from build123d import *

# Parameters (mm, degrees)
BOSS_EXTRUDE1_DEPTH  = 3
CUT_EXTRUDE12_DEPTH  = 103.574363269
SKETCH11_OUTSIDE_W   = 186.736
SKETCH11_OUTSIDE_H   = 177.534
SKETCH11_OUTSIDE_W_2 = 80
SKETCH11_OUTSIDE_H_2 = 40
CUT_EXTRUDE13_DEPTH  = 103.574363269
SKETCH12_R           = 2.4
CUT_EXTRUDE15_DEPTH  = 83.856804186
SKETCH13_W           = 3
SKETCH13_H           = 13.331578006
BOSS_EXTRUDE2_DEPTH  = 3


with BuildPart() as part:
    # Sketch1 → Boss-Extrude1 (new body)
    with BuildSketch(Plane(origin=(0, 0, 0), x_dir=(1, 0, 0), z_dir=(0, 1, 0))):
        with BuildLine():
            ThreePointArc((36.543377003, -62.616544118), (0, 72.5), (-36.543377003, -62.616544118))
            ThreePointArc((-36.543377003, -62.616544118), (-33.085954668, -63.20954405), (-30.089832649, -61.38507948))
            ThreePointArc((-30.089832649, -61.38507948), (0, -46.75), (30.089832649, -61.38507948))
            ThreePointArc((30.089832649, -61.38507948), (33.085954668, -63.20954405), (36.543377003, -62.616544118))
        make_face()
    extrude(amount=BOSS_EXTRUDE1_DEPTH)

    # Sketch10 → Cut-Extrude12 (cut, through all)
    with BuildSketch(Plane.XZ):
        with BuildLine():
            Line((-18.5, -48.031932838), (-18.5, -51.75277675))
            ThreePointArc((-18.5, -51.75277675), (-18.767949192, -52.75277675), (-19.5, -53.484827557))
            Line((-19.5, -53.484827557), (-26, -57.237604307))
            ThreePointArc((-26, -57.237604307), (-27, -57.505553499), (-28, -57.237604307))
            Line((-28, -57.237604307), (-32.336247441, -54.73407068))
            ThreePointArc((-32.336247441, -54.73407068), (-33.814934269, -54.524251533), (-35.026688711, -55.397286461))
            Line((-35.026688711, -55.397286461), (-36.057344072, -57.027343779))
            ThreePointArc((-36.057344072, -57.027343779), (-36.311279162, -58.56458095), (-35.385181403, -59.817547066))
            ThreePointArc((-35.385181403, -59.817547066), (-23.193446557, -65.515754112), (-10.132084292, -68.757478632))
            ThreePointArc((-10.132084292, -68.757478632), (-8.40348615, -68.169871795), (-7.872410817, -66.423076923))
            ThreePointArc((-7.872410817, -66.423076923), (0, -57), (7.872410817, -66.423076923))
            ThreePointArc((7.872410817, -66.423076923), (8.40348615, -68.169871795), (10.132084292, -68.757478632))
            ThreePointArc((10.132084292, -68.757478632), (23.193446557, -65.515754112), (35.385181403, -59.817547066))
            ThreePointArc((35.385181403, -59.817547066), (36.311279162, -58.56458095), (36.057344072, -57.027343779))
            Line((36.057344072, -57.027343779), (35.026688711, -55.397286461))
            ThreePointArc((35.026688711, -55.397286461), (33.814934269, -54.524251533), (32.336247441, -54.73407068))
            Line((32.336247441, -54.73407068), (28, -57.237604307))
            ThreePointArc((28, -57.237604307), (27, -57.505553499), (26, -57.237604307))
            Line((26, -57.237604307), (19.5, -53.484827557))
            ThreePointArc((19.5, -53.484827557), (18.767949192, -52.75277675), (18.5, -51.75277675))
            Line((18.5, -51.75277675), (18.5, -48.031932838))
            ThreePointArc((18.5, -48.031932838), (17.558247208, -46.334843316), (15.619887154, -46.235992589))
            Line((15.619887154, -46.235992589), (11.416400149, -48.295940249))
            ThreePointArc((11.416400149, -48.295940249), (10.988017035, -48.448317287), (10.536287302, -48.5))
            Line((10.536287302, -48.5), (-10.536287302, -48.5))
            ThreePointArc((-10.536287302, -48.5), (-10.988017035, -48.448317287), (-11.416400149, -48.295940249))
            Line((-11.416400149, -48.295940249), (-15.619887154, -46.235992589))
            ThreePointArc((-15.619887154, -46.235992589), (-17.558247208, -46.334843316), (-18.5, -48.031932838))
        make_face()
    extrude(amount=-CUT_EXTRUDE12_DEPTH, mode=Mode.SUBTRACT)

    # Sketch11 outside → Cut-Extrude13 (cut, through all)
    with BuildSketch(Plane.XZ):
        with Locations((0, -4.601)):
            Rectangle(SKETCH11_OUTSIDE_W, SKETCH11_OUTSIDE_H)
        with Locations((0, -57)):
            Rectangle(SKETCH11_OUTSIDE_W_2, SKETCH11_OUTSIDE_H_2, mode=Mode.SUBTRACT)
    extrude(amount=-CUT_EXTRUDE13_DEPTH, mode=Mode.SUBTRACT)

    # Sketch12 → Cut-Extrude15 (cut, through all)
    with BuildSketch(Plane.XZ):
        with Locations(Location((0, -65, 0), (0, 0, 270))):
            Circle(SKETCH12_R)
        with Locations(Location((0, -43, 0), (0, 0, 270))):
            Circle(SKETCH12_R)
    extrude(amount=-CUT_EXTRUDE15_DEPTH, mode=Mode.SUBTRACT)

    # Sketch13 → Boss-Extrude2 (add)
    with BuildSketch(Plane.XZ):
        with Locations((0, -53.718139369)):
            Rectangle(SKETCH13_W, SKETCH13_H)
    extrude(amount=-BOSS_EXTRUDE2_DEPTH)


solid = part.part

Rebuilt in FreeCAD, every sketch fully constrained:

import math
import FreeCAD as App
import Part
import Sketcher

V = App.Vector


def add_polygon(sketch, points):
    """Adds a closed chain of lines whose ends are joined by coincident constraints."""
    first, n = sketch.GeometryCount, len(points)
    for a, b in zip(points, points[1:] + points[:1]):
        sketch.addGeometry(Part.LineSegment(App.Vector(*a, 0), App.Vector(*b, 0)), False)
    for i in range(n):
        sketch.addConstraint(Sketcher.Constraint("Coincident", first + i, 2, first + (i + 1) % n, 1))

doc = App.newDocument("Part")
params = doc.addObject("Spreadsheet::Sheet", "Params")
for row, (alias, value) in enumerate([
    ("sketch1_radius", "5 mm"),
    ("sketch1_radius2", "72.5 mm"),
    ("sketch1_radius3", "38.25 mm"),
    ("pad1_length", "3 mm"),
    ("sketch2_radius", "2 mm"),
    ("sketch2_radius2", "2 mm"),
    ("sketch2_radius3", "2 mm"),
    ("sketch2_radius4", "2 mm"),
    ("sketch2_radius5", "2 mm"),
    ("sketch3_width", "80 mm"),
    ("sketch3_height", "40 mm"),
    ("sketch4_diameter", "4.8 mm"),
    ("sketch5_width", "3 mm"),
    ("pad2_length", "3 mm"),
], start=1):
    params.set(f"A{row}", alias)
    params.set(f"B{row}", "=" + value)
    params.setAlias(f"B{row}", alias)

body = doc.addObject("PartDesign::Body", "Body")

sketch1 = doc.addObject("Sketcher::SketchObject", "Sketch")
body.addObject(sketch1)
sketch1.AttachmentSupport = (doc.XZ_Plane, [""])
sketch1.MapMode = "FlatFace"
sketch1.addGeometry(Part.ArcOfCircle(Part.Circle(V(0, 0, 0), V(0, 0, 1), 72.5), math.radians(120.268083), math.radians(419.731917)), False)
sketch1.addGeometry(Part.ArcOfCircle(Part.Circle(V(-34.023144, 58.298162, 0), V(0, 0, 1), 5), math.radians(38.125318), math.radians(120.268083)), False)
sketch1.addGeometry(Part.ArcOfCircle(Part.Circle(V(0, 85, 0), V(0, 0, 1), 38.25), math.radians(-141.874682), math.radians(-38.125318)), False)
sketch1.addGeometry(Part.ArcOfCircle(Part.Circle(V(34.023144, 58.298162, 0), V(0, 0, 1), 5), math.radians(59.731917), math.radians(141.874682)), False)
sketch1.addConstraint(Sketcher.Constraint("Tangent", 0, 1, 1, 2))
sketch1.addConstraint(Sketcher.Constraint("Tangent", 1, 1, 2, 1))
sketch1.addConstraint(Sketcher.Constraint("Tangent", 2, 2, 3, 2))
sketch1.addConstraint(Sketcher.Constraint("Tangent", 3, 1, 0, 2))
sketch1.addConstraint(Sketcher.Constraint("Coincident", 0, 3, -1, 1))
sketch1.addConstraint(Sketcher.Constraint("Equal", 1, 3))
sketch1.addConstraint(Sketcher.Constraint("PointOnObject", 2, 3, -2))
sketch1.addConstraint(Sketcher.Constraint("Radius", 1, 5.0))
sketch1.addConstraint(Sketcher.Constraint("Radius", 0, 72.5))
sketch1.addConstraint(Sketcher.Constraint("Radius", 2, 38.25))
sketch1.addConstraint(Sketcher.Constraint("DistanceY", -1, 1, 2, 3, 85.0))
sketch1.setExpression("Constraints[7]", "Params.sketch1_radius")
sketch1.setExpression("Constraints[8]", "Params.sketch1_radius2")
sketch1.setExpression("Constraints[9]", "Params.sketch1_radius3")
pad1 = doc.addObject("PartDesign::Pad", "Pad")
body.addObject(pad1)
pad1.Profile = sketch1
pad1.setExpression("Length", "Params.pad1_length")
pad1.Reversed = True

sketch2 = doc.addObject("Sketcher::SketchObject", "Sketch001")
body.addObject(sketch2)
sketch2.AttachmentSupport = (doc.XZ_Plane, [""])
sketch2.MapMode = "FlatFace"
sketch2.addGeometry(Part.LineSegment(V(-18.5, -48.031933, 0), V(-18.5, -51.752777, 0)), False)
sketch2.addGeometry(Part.ArcOfCircle(Part.Circle(V(-20.5, -51.752777, 0), V(0, 0, 1), 2), math.radians(-60), math.radians(0)), False)
sketch2.addGeometry(Part.LineSegment(V(-19.5, -53.484828, 0), V(-26, -57.237604, 0)), False)
sketch2.addGeometry(Part.ArcOfCircle(Part.Circle(V(-27, -55.505553, 0), V(0, 0, 1), 2), math.radians(-120), math.radians(-60)), False)
sketch2.addGeometry(Part.LineSegment(V(-28, -57.237604, 0), V(-32.336247, -54.734071, 0)), False)
sketch2.addGeometry(Part.ArcOfCircle(Part.Circle(V(-33.336247, -56.466121, 0), V(0, 0, 1), 2), math.radians(60), math.radians(147.695583)), False)
sketch2.addGeometry(Part.LineSegment(V(-35.026689, -55.397286, 0), V(-36.057344, -57.027344, 0)), False)
sketch2.addGeometry(Part.ArcOfCircle(Part.Circle(V(-34.366903, -58.096179, 0), V(0, 0, 1), 2), math.radians(147.695583), math.radians(239.393484)), False)
sketch2.addGeometry(Part.ArcOfCircle(Part.Circle(V(0, 0, 0), V(0, 0, 1), 69.5), math.radians(-120.606516), math.radians(-98.382762)), False)
sketch2.addGeometry(Part.ArcOfCircle(Part.Circle(V(-9.840514, -66.778846, 0), V(0, 0, 1), 2), math.radians(-98.382762), math.radians(10.246569)), False)
sketch2.addGeometry(Part.ArcOfCircle(Part.Circle(V(0, -65, 0), V(0, 0, 1), 8), math.radians(-10.246569), math.radians(190.246569)), False)
sketch2.addGeometry(Part.ArcOfCircle(Part.Circle(V(9.840514, -66.778846, 0), V(0, 0, 1), 2), math.radians(169.753431), math.radians(278.382762)), False)
sketch2.addGeometry(Part.ArcOfCircle(Part.Circle(V(0, 0, 0), V(0, 0, 1), 69.5), math.radians(-81.617238), math.radians(-59.393484)), False)
sketch2.addGeometry(Part.ArcOfCircle(Part.Circle(V(34.366903, -58.096179, 0), V(0, 0, 1), 2), math.radians(-59.393484), math.radians(32.304417)), False)
sketch2.addGeometry(Part.LineSegment(V(36.057344, -57.027344, 0), V(35.026689, -55.397286, 0)), False)
sketch2.addGeometry(Part.ArcOfCircle(Part.Circle(V(33.336247, -56.466121, 0), V(0, 0, 1), 2), math.radians(32.304417), math.radians(120)), False)
sketch2.addGeometry(Part.LineSegment(V(32.336247, -54.734071, 0), V(28, -57.237604, 0)), False)
sketch2.addGeometry(Part.ArcOfCircle(Part.Circle(V(27, -55.505553, 0), V(0, 0, 1), 2), math.radians(-120), math.radians(-60)), False)
sketch2.addGeometry(Part.LineSegment(V(26, -57.237604, 0), V(19.5, -53.484828, 0)), False)
sketch2.addGeometry(Part.ArcOfCircle(Part.Circle(V(20.5, -51.752777, 0), V(0, 0, 1), 2), math.radians(180), math.radians(240)), False)
sketch2.addGeometry(Part.LineSegment(V(18.5, -51.752777, 0), V(18.5, -48.031933, 0)), False)
sketch2.addGeometry(Part.ArcOfCircle(Part.Circle(V(16.5, -48.031933, 0), V(0, 0, 1), 2), math.radians(0), math.radians(116.107481)), False)
sketch2.addGeometry(Part.LineSegment(V(15.619887, -46.235993, 0), V(11.4164, -48.29594, 0)), False)
sketch2.addGeometry(Part.ArcOfCircle(Part.Circle(V(10.536287, -46.5, 0), V(0, 0, 1), 2), math.radians(-90), math.radians(-63.892519)), False)
sketch2.addGeometry(Part.LineSegment(V(10.536287, -48.5, 0), V(-10.536287, -48.5, 0)), False)
sketch2.addGeometry(Part.ArcOfCircle(Part.Circle(V(-10.536287, -46.5, 0), V(0, 0, 1), 2), math.radians(-116.107481), math.radians(-90)), False)
sketch2.addGeometry(Part.LineSegment(V(-11.4164, -48.29594, 0), V(-15.619887, -46.235993, 0)), False)
sketch2.addGeometry(Part.ArcOfCircle(Part.Circle(V(-16.5, -48.031933, 0), V(0, 0, 1), 2), math.radians(63.892519), math.radians(180)), False)
sketch2.addConstraint(Sketcher.Constraint("Coincident", 0, 2, 1, 2))
sketch2.addConstraint(Sketcher.Constraint("Coincident", 1, 1, 2, 1))
sketch2.addConstraint(Sketcher.Constraint("Coincident", 2, 2, 3, 2))
sketch2.addConstraint(Sketcher.Constraint("Coincident", 3, 1, 4, 1))
sketch2.addConstraint(Sketcher.Constraint("Coincident", 4, 2, 5, 1))
sketch2.addConstraint(Sketcher.Constraint("Coincident", 5, 2, 6, 1))
sketch2.addConstraint(Sketcher.Constraint("Coincident", 6, 2, 7, 1))
sketch2.addConstraint(Sketcher.Constraint("Coincident", 7, 2, 8, 1))
sketch2.addConstraint(Sketcher.Constraint("Coincident", 8, 2, 9, 1))
sketch2.addConstraint(Sketcher.Constraint("Coincident", 9, 2, 10, 2))
sketch2.addConstraint(Sketcher.Constraint("Coincident", 10, 1, 11, 1))
sketch2.addConstraint(Sketcher.Constraint("Coincident", 11, 2, 12, 1))
sketch2.addConstraint(Sketcher.Constraint("Coincident", 12, 2, 13, 1))
sketch2.addConstraint(Sketcher.Constraint("Coincident", 13, 2, 14, 1))
sketch2.addConstraint(Sketcher.Constraint("Coincident", 14, 2, 15, 1))
sketch2.addConstraint(Sketcher.Constraint("Coincident", 15, 2, 16, 1))
sketch2.addConstraint(Sketcher.Constraint("Coincident", 16, 2, 17, 2))
sketch2.addConstraint(Sketcher.Constraint("Coincident", 17, 1, 18, 1))
sketch2.addConstraint(Sketcher.Constraint("Coincident", 18, 2, 19, 2))
sketch2.addConstraint(Sketcher.Constraint("Coincident", 19, 1, 20, 1))
sketch2.addConstraint(Sketcher.Constraint("Coincident", 20, 2, 21, 1))
sketch2.addConstraint(Sketcher.Constraint("Coincident", 21, 2, 22, 1))
sketch2.addConstraint(Sketcher.Constraint("Coincident", 22, 2, 23, 2))
sketch2.addConstraint(Sketcher.Constraint("Coincident", 23, 1, 24, 1))
sketch2.addConstraint(Sketcher.Constraint("Coincident", 24, 2, 25, 2))
sketch2.addConstraint(Sketcher.Constraint("Coincident", 25, 1, 26, 1))
sketch2.addConstraint(Sketcher.Constraint("Coincident", 26, 2, 27, 1))
sketch2.addConstraint(Sketcher.Constraint("Coincident", 27, 2, 0, 1))
sketch2.addConstraint(Sketcher.Constraint("Vertical", 0))
sketch2.addConstraint(Sketcher.Constraint("Vertical", 20))
sketch2.addConstraint(Sketcher.Constraint("Horizontal", 24))
sketch2.addConstraint(Sketcher.Constraint("Coincident", 8, 3, -1, 1))
sketch2.addConstraint(Sketcher.Constraint("Coincident", 12, 3, -1, 1))
sketch2.addConstraint(Sketcher.Constraint("PointOnObject", 10, 3, -2))
sketch2.addConstraint(Sketcher.Constraint("Radius", 1, 2.0))
sketch2.addConstraint(Sketcher.Constraint("Radius", 3, 2.0))
sketch2.addConstraint(Sketcher.Constraint("Radius", 5, 2.0))
sketch2.addConstraint(Sketcher.Constraint("Radius", 7, 2.0))
sketch2.addConstraint(Sketcher.Constraint("Radius", 9, 2.0))
sketch2.addConstraint(Sketcher.Constraint("Radius", 10, 8.0))
sketch2.addConstraint(Sketcher.Constraint("Radius", 11, 2.0))
sketch2.addConstraint(Sketcher.Constraint("Radius", 13, 2.0))
sketch2.addConstraint(Sketcher.Constraint("Radius", 15, 2.0))
sketch2.addConstraint(Sketcher.Constraint("Radius", 17, 2.0))
sketch2.addConstraint(Sketcher.Constraint("Radius", 19, 2.0))
sketch2.addConstraint(Sketcher.Constraint("Radius", 21, 2.0))
sketch2.addConstraint(Sketcher.Constraint("Radius", 23, 2.0))
sketch2.addConstraint(Sketcher.Constraint("Radius", 25, 2.0))
sketch2.addConstraint(Sketcher.Constraint("Radius", 27, 2.0))
sketch2.addConstraint(Sketcher.Constraint("Radius", 8, 69.5))
sketch2.addConstraint(Sketcher.Constraint("Radius", 12, 69.5))
sketch2.addConstraint(Sketcher.Constraint("DistanceX", 3, 3, -1, 1, 27.0))
sketch2.addConstraint(Sketcher.Constraint("DistanceY", 10, 3, -1, 1, 65.0))
sketch2.addConstraint(Sketcher.Constraint("DistanceX", -1, 1, 17, 3, 27.0))
sketch2.addConstraint(Sketcher.Constraint("DistanceX", 2, 2, -1, 1, 26.0))
sketch2.addConstraint(Sketcher.Constraint("DistanceX", 3, 1, -1, 1, 28.0))
sketch2.addConstraint(Sketcher.Constraint("DistanceX", -1, 1, 16, 2, 28.0))
sketch2.addConstraint(Sketcher.Constraint("DistanceX", -1, 1, 17, 1, 26.0))
sketch2.addConstraint(Sketcher.Constraint("DistanceX", 1, 3, 1, 1, 1.0))
sketch2.addConstraint(Sketcher.Constraint("DistanceX", 5, 3, 4, 2, 1.0))
sketch2.addConstraint(Sketcher.Constraint("DistanceX", 15, 2, 15, 3, 1.0))
sketch2.addConstraint(Sketcher.Constraint("DistanceX", 18, 2, 19, 3, 1.0))
sketch2.addConstraint(Sketcher.Constraint("DistanceX", 1, 3, -1, 1, 20.5))
sketch2.addConstraint(Sketcher.Constraint("DistanceX", -1, 1, 19, 3, 20.5))
sketch2.addConstraint(Sketcher.Constraint("DistanceY", 23, 3, -1, 1, 46.5))
sketch2.addConstraint(Sketcher.Constraint("Distance", 22, 4.681099))
sketch2.addConstraint(Sketcher.Constraint("Distance", 26, 4.681099))
sketch2.addConstraint(Sketcher.Constraint("DistanceX", -1, 1, 22, 2, 11.4164))
sketch2.addConstraint(Sketcher.Constraint("DistanceX", 25, 1, -1, 1, 11.4164))
sketch2.addConstraint(Sketcher.Constraint("DistanceY", 8, 2, 0, 2, 17.004702))
sketch2.addConstraint(Sketcher.Constraint("DistanceY", 8, 2, 9, 2, 2.334402))
sketch2.addConstraint(Sketcher.Constraint("DistanceY", 8, 2, 10, 1, 2.334402))
sketch2.addConstraint(Sketcher.Constraint("DistanceY", 11, 2, 10, 1, 2.334402))
sketch2.addConstraint(Sketcher.Constraint("DistanceY", 11, 2, 19, 3, 17.004702))
sketch2.addConstraint(Sketcher.Constraint("DistanceX", 23, 3, 21, 2, 5.0836))
sketch2.addConstraint(Sketcher.Constraint("DistanceX", 23, 1, 21, 2, 5.0836))
sketch2.addConstraint(Sketcher.Constraint("DistanceX", 26, 2, 25, 3, 5.0836))
sketch2.addConstraint(Sketcher.Constraint("DistanceX", 26, 2, 24, 2, 5.0836))
sketch2.addConstraint(Sketcher.Constraint("Distance", 6, 1.928558))
sketch2.addConstraint(Sketcher.Constraint("Distance", 14, 1.928558))
sketch2.addConstraint(Sketcher.Constraint("DistanceX", 24, 2, 24, 1, 21.072575))
sketch2.addConstraint(Sketcher.Constraint("DistanceY", 0, 2, 0, 1, 3.720844))
sketch2.addConstraint(Sketcher.Constraint("DistanceY", 20, 1, 20, 2, 3.720844))
sketch2.addConstraint(Sketcher.Constraint("DistanceY", 5, 3, -1, 1, 56.466121))
sketch2.addConstraint(Sketcher.Constraint("DistanceY", 7, 3, -1, 1, 58.096179))
sketch2.addConstraint(Sketcher.Constraint("DistanceY", 13, 3, -1, 1, 58.096179))
sketch2.addConstraint(Sketcher.Constraint("DistanceY", 15, 3, -1, 1, 56.466121))
sketch2.addConstraint(Sketcher.Constraint("DistanceX", 5, 2, -1, 1, 35.026689))
sketch2.addConstraint(Sketcher.Constraint("DistanceX", 7, 2, -1, 1, 35.385181))
sketch2.addConstraint(Sketcher.Constraint("DistanceY", 8, 2, -1, 1, 68.757479))
sketch2.addConstraint(Sketcher.Constraint("DistanceX", -1, 1, 12, 2, 35.385181))
sketch2.addConstraint(Sketcher.Constraint("DistanceX", -1, 1, 14, 2, 35.026689))
sketch2.addConstraint(Sketcher.Constraint("DistanceY", 22, 2, -1, 1, 48.29594))
sketch2.addConstraint(Sketcher.Constraint("DistanceY", 9, 3, 1, 3, 15.026069))
sketch2.addConstraint(Sketcher.Constraint("DistanceX", 5, 3, 11, 3, 43.176761))
sketch2.addConstraint(Sketcher.Constraint("DistanceX", 9, 3, 15, 3, 43.176761))
sketch2.addConstraint(Sketcher.Constraint("DistanceY", 17, 3, 21, 3, 7.473621))
sketch2.addConstraint(Sketcher.Constraint("DistanceY", 3, 3, 27, 3, 7.473621))
sketch2.addConstraint(Sketcher.Constraint("DistanceY", 18, 2, 19, 1, 1.732051))
sketch2.setExpression("Constraints[34]", "Params.sketch2_radius")
sketch2.setExpression("Constraints[35]", "Params.sketch2_radius2")
sketch2.setExpression("Constraints[36]", "Params.sketch2_radius3")
sketch2.setExpression("Constraints[37]", "Params.sketch2_radius4")
sketch2.setExpression("Constraints[38]", "Params.sketch2_radius5")
pocket1 = doc.addObject("PartDesign::Pocket", "Pocket")
body.addObject(pocket1)
pocket1.Profile = sketch2
pocket1.Type = "ThroughAll"

sketch3 = doc.addObject("Sketcher::SketchObject", "Sketch002")
body.addObject(sketch3)
sketch3.AttachmentSupport = (doc.XZ_Plane, [""])
sketch3.MapMode = "FlatFace"
add_polygon(sketch3, [(-93.368, 84.166), (-93.368, -93.368), (93.368, -93.368), (93.368, 84.166)])
add_polygon(sketch3, [(40, -77), (-40, -77), (-40, -37), (40, -37)])
sketch3.addConstraint(Sketcher.Constraint("Vertical", 0))
sketch3.addConstraint(Sketcher.Constraint("Horizontal", 1))
sketch3.addConstraint(Sketcher.Constraint("Vertical", 2))
sketch3.addConstraint(Sketcher.Constraint("Horizontal", 3))
sketch3.addConstraint(Sketcher.Constraint("Horizontal", 4))
sketch3.addConstraint(Sketcher.Constraint("Vertical", 5))
sketch3.addConstraint(Sketcher.Constraint("Horizontal", 6))
sketch3.addConstraint(Sketcher.Constraint("Vertical", 7))
sketch3.addConstraint(Sketcher.Constraint("DistanceX", 4, 2, 4, 1, 80.0))
sketch3.addConstraint(Sketcher.Constraint("DistanceY", 5, 1, 5, 2, 40.0))
sketch3.addConstraint(Sketcher.Constraint("DistanceX", 4, 2, -1, 1, 40.0))
sketch3.addConstraint(Sketcher.Constraint("DistanceY", 4, 2, -1, 1, 77.0))
sketch3.addConstraint(Sketcher.Constraint("DistanceX", 1, 1, 1, 2, 186.736))
sketch3.addConstraint(Sketcher.Constraint("DistanceY", 0, 2, 0, 1, 177.534))
sketch3.addConstraint(Sketcher.Constraint("DistanceX", 0, 2, -1, 1, 93.368))
sketch3.addConstraint(Sketcher.Constraint("DistanceY", 0, 2, -1, 1, 93.368))
sketch3.setExpression("Constraints[16]", "Params.sketch3_width")
sketch3.setExpression("Constraints[17]", "Params.sketch3_height")
pocket2 = doc.addObject("PartDesign::Pocket", "Pocket001")
body.addObject(pocket2)
pocket2.Profile = sketch3
pocket2.Type = "ThroughAll"

sketch4 = doc.addObject("Sketcher::SketchObject", "Sketch003")
body.addObject(sketch4)
sketch4.AttachmentSupport = (doc.XZ_Plane, [""])
sketch4.MapMode = "FlatFace"
sketch4.addGeometry(Part.Circle(V(0, -65, 0), V(0, 0, 1), 2.4), False)
sketch4.addGeometry(Part.Circle(V(0, -43, 0), V(0, 0, 1), 2.4), False)
sketch4.addConstraint(Sketcher.Constraint("Equal", 0, 1))
sketch4.addConstraint(Sketcher.Constraint("PointOnObject", 0, 3, -2))
sketch4.addConstraint(Sketcher.Constraint("PointOnObject", 1, 3, -2))
sketch4.addConstraint(Sketcher.Constraint("Diameter", 0, 4.8))
sketch4.addConstraint(Sketcher.Constraint("DistanceY", 0, 3, -1, 1, 65.0))
sketch4.addConstraint(Sketcher.Constraint("DistanceY", 1, 3, -1, 1, 43.0))
sketch4.setExpression("Constraints[3]", "Params.sketch4_diameter")
pocket3 = doc.addObject("PartDesign::Pocket", "Pocket002")
body.addObject(pocket3)
pocket3.Profile = sketch4
pocket3.Type = "ThroughAll"

sketch5 = doc.addObject("Sketcher::SketchObject", "Sketch004")
body.addObject(sketch5)
sketch5.AttachmentSupport = (doc.XZ_Plane, [""])
sketch5.MapMode = "FlatFace"
add_polygon(sketch5, [(-1.5, -47.05235), (-1.5, -60.383928), (1.5, -60.383928), (1.5, -47.05235)])
sketch5.addConstraint(Sketcher.Constraint("Vertical", 0))
sketch5.addConstraint(Sketcher.Constraint("Horizontal", 1))
sketch5.addConstraint(Sketcher.Constraint("Vertical", 2))
sketch5.addConstraint(Sketcher.Constraint("Horizontal", 3))
sketch5.addConstraint(Sketcher.Constraint("DistanceX", 1, 1, 1, 2, 3.0))
sketch5.addConstraint(Sketcher.Constraint("DistanceX", 0, 2, -1, 1, 1.5))
sketch5.addConstraint(Sketcher.Constraint("DistanceY", 0, 2, 0, 1, 13.331578))
sketch5.addConstraint(Sketcher.Constraint("DistanceY", 0, 2, -1, 1, 60.383928))
sketch5.setExpression("Constraints[8]", "Params.sketch5_width")
pad2 = doc.addObject("PartDesign::Pad", "Pad001")
body.addObject(pad2)
pad2.Profile = sketch5
pad2.setExpression("Length", "Params.pad2_length")
pad2.Reversed = True

doc.recompute()
